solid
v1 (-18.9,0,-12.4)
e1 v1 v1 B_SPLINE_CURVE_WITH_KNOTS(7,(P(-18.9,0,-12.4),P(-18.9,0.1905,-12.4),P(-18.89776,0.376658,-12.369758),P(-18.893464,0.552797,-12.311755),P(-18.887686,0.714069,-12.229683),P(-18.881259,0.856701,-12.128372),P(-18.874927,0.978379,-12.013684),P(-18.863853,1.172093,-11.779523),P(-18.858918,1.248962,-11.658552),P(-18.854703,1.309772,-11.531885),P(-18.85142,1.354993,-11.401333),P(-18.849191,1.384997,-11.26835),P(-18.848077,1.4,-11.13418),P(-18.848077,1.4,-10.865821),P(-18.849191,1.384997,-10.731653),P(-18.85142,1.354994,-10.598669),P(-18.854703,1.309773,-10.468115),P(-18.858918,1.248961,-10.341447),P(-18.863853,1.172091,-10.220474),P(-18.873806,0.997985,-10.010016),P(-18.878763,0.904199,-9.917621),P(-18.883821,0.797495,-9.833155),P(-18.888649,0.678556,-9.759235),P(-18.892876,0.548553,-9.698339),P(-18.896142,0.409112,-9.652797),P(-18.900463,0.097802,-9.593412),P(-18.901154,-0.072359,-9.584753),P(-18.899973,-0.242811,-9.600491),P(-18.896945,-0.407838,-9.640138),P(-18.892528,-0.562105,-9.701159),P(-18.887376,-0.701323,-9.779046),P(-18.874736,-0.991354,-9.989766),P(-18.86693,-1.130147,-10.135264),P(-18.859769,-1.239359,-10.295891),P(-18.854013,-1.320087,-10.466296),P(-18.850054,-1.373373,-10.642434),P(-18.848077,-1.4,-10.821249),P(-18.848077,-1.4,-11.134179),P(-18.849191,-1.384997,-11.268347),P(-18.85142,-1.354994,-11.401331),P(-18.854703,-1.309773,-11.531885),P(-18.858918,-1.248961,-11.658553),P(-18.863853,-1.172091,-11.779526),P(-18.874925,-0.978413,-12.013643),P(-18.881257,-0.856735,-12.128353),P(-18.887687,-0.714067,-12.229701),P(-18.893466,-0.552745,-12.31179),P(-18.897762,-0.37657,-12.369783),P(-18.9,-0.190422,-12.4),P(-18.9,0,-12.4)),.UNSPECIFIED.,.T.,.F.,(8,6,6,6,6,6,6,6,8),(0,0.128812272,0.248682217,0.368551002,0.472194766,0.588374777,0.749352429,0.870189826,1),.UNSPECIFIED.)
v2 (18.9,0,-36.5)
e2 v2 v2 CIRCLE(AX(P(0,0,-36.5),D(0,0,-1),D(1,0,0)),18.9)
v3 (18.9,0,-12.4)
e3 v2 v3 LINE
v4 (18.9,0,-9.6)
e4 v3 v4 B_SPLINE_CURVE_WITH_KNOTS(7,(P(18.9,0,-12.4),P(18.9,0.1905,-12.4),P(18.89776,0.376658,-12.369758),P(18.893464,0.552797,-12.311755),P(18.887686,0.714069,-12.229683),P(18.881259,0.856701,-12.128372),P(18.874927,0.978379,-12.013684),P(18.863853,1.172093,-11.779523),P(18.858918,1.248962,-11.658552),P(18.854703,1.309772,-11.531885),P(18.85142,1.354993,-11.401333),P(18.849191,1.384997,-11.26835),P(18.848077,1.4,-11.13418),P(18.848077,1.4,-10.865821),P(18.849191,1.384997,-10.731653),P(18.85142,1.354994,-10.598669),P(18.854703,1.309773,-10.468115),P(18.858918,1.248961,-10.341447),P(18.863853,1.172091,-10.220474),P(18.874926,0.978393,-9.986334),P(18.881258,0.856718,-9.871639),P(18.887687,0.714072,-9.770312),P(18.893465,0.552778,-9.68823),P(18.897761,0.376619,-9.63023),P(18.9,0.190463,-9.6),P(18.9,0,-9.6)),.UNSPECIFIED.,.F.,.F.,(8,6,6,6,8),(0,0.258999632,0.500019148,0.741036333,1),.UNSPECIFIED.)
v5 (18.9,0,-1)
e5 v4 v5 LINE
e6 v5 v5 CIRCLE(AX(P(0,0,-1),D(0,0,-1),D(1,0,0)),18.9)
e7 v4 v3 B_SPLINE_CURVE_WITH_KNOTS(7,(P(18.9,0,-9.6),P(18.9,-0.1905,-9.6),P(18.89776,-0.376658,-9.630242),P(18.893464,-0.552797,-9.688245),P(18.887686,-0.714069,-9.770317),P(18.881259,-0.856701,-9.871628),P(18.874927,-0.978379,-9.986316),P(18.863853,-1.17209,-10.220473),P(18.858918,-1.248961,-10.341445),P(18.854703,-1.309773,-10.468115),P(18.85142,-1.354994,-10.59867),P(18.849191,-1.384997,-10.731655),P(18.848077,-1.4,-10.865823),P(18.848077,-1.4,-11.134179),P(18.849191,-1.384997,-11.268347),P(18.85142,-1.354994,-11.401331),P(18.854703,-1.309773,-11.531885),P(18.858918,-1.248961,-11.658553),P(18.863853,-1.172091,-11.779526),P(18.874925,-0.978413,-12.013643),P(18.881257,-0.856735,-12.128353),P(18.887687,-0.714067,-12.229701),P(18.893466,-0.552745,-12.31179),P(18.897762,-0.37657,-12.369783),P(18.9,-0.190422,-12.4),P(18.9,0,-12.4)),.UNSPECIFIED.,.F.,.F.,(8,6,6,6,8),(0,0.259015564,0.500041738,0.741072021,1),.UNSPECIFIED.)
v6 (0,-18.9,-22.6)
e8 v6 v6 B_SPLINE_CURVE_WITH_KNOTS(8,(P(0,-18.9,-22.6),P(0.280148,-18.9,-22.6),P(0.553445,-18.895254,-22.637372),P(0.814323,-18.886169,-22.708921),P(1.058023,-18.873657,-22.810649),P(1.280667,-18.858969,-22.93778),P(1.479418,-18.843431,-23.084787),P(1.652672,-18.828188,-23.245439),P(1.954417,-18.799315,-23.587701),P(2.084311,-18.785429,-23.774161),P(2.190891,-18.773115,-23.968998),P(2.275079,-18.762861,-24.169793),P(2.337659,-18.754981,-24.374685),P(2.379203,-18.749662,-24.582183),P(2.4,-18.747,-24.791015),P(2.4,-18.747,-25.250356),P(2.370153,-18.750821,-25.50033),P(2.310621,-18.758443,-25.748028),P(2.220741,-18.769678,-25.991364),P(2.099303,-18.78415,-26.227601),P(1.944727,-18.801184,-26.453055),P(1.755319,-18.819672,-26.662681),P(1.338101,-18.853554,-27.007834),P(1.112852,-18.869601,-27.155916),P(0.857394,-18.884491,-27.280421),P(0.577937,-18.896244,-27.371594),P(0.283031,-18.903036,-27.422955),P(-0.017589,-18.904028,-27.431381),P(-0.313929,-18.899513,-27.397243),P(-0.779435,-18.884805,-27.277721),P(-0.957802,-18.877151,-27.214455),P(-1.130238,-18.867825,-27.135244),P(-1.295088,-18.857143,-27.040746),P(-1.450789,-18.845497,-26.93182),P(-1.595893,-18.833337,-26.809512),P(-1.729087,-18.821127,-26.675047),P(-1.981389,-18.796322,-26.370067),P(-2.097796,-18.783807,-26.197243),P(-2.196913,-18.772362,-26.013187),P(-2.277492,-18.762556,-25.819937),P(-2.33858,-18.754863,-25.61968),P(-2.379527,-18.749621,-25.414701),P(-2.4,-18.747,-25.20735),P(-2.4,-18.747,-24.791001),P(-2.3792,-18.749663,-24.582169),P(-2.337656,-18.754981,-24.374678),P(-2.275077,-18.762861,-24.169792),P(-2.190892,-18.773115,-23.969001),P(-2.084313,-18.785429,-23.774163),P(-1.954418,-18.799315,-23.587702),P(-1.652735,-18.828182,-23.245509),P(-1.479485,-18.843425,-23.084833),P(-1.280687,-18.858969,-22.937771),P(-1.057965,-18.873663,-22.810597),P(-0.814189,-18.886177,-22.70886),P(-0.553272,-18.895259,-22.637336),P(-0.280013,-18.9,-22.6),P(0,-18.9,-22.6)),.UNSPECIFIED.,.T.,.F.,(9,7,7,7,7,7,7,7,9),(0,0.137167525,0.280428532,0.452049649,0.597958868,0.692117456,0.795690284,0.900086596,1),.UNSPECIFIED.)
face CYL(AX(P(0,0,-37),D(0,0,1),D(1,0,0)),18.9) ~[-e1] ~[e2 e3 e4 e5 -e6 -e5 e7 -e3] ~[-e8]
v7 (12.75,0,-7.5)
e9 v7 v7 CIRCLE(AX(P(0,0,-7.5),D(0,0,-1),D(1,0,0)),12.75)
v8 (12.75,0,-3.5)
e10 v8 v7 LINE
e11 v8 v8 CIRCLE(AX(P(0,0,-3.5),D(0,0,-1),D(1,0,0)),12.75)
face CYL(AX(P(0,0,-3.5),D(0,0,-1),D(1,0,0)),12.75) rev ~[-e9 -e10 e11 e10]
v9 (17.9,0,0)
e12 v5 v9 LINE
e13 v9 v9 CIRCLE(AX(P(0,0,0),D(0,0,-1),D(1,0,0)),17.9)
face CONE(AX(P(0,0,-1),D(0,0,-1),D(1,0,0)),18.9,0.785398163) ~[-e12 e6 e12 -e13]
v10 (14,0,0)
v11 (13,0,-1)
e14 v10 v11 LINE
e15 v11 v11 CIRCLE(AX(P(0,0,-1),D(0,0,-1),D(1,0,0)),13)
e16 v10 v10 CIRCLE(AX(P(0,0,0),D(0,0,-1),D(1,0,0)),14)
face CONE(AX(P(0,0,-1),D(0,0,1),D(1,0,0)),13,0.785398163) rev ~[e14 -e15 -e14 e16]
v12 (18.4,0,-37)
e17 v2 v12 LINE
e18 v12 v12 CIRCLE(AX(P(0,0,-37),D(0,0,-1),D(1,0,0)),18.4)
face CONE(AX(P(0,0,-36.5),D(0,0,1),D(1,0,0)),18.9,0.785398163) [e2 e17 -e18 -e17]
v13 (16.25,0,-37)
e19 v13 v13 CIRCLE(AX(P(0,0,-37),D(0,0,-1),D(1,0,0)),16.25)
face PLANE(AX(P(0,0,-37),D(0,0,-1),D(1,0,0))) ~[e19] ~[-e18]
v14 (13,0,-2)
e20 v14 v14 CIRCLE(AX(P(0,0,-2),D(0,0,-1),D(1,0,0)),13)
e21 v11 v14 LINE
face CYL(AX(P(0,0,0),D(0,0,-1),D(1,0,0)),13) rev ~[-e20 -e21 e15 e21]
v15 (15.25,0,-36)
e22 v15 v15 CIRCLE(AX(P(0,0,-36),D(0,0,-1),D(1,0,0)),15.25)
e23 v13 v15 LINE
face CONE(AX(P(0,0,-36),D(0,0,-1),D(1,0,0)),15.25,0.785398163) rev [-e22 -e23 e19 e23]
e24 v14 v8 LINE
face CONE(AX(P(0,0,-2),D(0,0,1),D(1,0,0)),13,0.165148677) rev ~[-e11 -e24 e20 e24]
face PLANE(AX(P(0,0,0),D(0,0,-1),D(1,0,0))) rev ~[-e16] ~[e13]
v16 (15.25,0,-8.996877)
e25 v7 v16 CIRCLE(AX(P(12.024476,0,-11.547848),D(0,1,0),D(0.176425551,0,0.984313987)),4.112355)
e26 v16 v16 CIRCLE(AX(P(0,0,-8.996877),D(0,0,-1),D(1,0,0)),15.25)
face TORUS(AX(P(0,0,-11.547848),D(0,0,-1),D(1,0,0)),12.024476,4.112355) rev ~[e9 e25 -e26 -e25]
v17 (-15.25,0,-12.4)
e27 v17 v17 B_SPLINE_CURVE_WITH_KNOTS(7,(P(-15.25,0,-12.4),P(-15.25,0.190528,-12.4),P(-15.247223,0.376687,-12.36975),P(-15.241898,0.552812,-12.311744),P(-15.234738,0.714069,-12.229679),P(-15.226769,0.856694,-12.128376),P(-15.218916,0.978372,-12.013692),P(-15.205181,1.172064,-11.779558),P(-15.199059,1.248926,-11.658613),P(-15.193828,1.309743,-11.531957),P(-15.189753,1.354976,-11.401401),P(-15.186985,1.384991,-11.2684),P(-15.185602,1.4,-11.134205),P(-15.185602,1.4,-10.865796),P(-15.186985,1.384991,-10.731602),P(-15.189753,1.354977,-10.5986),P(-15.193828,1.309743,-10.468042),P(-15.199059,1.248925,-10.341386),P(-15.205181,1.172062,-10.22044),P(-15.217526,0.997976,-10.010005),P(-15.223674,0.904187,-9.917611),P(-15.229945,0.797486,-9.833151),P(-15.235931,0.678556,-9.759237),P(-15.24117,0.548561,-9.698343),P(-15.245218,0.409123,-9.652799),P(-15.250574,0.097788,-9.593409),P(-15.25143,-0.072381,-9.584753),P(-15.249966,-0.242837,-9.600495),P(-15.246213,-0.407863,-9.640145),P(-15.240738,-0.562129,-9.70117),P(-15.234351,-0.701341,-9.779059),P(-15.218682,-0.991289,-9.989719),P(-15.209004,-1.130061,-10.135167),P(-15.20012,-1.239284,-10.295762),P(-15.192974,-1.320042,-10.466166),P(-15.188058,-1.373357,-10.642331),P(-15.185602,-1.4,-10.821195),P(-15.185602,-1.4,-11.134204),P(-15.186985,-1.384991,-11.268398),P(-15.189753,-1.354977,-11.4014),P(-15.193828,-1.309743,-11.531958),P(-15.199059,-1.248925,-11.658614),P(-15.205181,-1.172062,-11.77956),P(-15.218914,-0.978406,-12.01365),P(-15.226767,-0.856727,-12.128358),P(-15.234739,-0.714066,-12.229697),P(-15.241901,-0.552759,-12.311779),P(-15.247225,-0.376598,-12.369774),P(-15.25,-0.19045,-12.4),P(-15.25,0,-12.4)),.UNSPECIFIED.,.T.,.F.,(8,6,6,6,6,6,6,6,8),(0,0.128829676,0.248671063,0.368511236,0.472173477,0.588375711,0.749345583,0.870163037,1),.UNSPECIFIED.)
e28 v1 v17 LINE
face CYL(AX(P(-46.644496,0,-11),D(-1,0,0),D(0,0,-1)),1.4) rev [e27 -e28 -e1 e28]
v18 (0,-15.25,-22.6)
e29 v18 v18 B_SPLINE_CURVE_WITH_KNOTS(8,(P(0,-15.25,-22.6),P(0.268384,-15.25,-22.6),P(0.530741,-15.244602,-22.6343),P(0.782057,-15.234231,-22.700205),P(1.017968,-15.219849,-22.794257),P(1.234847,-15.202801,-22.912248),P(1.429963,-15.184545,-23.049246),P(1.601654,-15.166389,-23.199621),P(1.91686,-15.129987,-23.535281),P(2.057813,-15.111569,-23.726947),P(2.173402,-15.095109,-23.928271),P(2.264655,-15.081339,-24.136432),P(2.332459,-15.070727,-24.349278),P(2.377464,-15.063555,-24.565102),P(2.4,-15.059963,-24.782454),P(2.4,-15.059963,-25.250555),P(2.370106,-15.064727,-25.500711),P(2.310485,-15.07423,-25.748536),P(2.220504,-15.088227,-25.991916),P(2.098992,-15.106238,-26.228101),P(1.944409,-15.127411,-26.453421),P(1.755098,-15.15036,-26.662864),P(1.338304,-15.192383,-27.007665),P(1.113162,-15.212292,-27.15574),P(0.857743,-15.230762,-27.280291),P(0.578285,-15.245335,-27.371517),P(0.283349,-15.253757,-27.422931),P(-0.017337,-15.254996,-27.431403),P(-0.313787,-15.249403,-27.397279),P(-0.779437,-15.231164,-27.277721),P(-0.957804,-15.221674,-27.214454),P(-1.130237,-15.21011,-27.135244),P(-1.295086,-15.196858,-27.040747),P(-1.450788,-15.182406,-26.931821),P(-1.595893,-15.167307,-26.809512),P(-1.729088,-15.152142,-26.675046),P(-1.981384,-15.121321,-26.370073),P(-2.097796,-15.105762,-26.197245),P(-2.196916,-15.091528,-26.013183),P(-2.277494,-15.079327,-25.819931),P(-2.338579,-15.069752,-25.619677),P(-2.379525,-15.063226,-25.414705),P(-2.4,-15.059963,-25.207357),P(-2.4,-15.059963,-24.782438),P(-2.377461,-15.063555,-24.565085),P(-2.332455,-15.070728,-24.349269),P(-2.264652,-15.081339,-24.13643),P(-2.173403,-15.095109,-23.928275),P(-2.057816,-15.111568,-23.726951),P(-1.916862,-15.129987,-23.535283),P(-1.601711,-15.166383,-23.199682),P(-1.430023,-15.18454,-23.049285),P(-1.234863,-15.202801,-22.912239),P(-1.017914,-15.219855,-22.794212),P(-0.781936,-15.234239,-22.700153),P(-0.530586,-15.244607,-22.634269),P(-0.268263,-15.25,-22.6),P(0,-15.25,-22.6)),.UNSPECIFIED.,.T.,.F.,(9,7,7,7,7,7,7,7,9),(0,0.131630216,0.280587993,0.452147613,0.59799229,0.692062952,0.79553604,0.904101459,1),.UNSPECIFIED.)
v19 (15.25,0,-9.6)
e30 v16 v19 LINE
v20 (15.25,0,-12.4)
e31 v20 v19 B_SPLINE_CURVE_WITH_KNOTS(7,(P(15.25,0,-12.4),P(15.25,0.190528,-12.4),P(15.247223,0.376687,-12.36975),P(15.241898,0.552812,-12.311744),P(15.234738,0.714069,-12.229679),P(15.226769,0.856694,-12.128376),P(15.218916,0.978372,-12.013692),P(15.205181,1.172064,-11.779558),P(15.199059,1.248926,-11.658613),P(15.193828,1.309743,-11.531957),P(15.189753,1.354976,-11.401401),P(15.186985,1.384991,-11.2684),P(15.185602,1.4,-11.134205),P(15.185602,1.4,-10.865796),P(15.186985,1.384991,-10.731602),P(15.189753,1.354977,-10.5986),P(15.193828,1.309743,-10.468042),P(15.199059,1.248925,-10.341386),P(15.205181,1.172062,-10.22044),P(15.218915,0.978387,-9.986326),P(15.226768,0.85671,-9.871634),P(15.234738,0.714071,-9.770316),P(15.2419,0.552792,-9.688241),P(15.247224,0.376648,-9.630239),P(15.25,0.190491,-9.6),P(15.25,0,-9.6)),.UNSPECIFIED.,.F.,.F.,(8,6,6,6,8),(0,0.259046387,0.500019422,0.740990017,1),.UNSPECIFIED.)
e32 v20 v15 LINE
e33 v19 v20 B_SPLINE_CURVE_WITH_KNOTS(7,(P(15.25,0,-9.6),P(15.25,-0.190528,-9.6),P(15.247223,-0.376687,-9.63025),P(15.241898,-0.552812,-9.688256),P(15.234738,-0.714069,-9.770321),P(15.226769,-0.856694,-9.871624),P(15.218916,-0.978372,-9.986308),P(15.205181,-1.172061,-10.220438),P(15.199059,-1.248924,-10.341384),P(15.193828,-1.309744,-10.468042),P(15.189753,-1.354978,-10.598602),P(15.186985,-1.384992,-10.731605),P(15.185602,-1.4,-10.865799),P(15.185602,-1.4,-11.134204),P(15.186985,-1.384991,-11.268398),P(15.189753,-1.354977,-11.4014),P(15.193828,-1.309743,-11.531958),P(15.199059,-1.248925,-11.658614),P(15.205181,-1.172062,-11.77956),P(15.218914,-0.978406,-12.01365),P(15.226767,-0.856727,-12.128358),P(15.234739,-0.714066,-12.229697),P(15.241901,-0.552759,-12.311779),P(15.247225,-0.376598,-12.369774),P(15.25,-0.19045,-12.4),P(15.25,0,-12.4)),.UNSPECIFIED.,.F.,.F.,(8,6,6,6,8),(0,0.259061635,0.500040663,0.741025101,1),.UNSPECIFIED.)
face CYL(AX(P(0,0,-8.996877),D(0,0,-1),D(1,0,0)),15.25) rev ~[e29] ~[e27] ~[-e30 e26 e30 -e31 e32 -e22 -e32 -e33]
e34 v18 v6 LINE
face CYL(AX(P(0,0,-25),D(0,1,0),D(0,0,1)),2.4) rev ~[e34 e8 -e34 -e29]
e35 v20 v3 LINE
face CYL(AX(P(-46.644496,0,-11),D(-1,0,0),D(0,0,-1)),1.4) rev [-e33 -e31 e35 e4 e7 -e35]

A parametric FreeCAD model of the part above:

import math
import FreeCAD as App
import Part
import Sketcher


def edges_at(feature, points):
    """Names of the edges that pass closest to the given points."""
    edges = feature.Shape.Edges
    near = lambda p: min(range(len(edges)), key=lambda i: edges[i].distToShape(Part.Vertex(*p))[0])
    return sorted({f"Edge{near(p) + 1}" for p in points})

doc = App.newDocument("Part")
params = doc.addObject("Spreadsheet::Sheet", "Params")
for row, (alias, value) in enumerate([
    ("sketch1_height", "2 mm"),
    ("sketch1_height2", "4 mm"),
    ("sketch1_height3", "37 mm"),
    ("sketch1_width", "5.9 mm"),
    ("sketch1_width2", "3.65 mm"),
    ("revolution_angle", "360 deg"),
    ("sketch2_diameter", "4.8 mm"),
    ("chamfer_size", "0.5 mm"),
    ("chamfer2_size", "1 mm"),
    ("sketch3_diameter", "2.8 mm"),
], start=1):
    params.set(f"A{row}", alias)
    params.set(f"B{row}", "=" + value)
    params.setAlias(f"B{row}", alias)

body = doc.addObject("PartDesign::Body", "Body")

sketch1 = body.newObject("Sketcher::SketchObject", "Sketch")
sketch1.AttachmentSupport = (doc.getObject("YZ_Plane"), [""])
sketch1.MapMode = "FlatFace"
sketch1.addGeometry([
    Part.LineSegment(App.Vector(13, 0, 0), App.Vector(13, -2, 0)),
    Part.LineSegment(App.Vector(13, -2, 0), App.Vector(12.75, -3.5, 0)),
    Part.LineSegment(App.Vector(12.75, -3.5, 0), App.Vector(12.75, -7.5, 0)),
    Part.ArcOfCircle(Part.Circle(App.Vector(12.024476, -11.547848, 0), App.Vector(0, 0, 1), 4.112355), math.radians(38.33942), math.radians(79.838373)),
    Part.LineSegment(App.Vector(15.25, -8.996877, 0), App.Vector(15.25, -37, 0)),
    Part.LineSegment(App.Vector(15.25, -37, 0), App.Vector(18.9, -37, 0)),
    Part.LineSegment(App.Vector(18.9, -37, 0), App.Vector(18.9, 0, 0)),
    Part.LineSegment(App.Vector(18.9, 0, 0), App.Vector(13, 0, 0)),
], False)
sketch1.addConstraint([
    Sketcher.Constraint("Coincident", 0, 2, 1, 1),
    Sketcher.Constraint("Coincident", 1, 2, 2, 1),
    Sketcher.Constraint("Coincident", 2, 2, 3, 2),
    Sketcher.Constraint("Coincident", 3, 1, 4, 1),
    Sketcher.Constraint("Coincident", 4, 2, 5, 1),
    Sketcher.Constraint("Coincident", 5, 2, 6, 1),
    Sketcher.Constraint("Coincident", 6, 2, 7, 1),
    Sketcher.Constraint("Coincident", 7, 2, 0, 1),
    Sketcher.Constraint("Vertical", 0),
    Sketcher.Constraint("Vertical", 2),
    Sketcher.Constraint("Vertical", 4),
    Sketcher.Constraint("Horizontal", 5),
    Sketcher.Constraint("Vertical", 6),
    Sketcher.Constraint("Horizontal", 7),
    Sketcher.Constraint("PointOnObject", 6, 2, -1),
    Sketcher.Constraint("DistanceY", 0, 2, 0, 1, 2.0),
    Sketcher.Constraint("DistanceY", 2, 2, 2, 1, 4.0),
    Sketcher.Constraint("DistanceY", 6, 1, 6, 2, 37.0),
    Sketcher.Constraint("DistanceX", 7, 2, 7, 1, 5.9),
    Sketcher.Constraint("DistanceX", -1, 1, 0, 2, 13.0),
    Sketcher.Constraint("DistanceX", 5, 1, 5, 2, 3.65),
    Sketcher.Constraint("DistanceY", 1, 2, -1, 1, 3.5),
    Sketcher.Constraint("DistanceX", 2, 2, 3, 1, 2.5),
    Sketcher.Constraint("Radius", 3, 4.112355),
    Sketcher.Constraint("DistanceY", 4, 2, 4, 1, 28.003123),
])
sketch1.setExpression("Constraints[15]", "Params.sketch1_height")
sketch1.setExpression("Constraints[16]", "Params.sketch1_height2")
sketch1.setExpression("Constraints[17]", "Params.sketch1_height3")
sketch1.setExpression("Constraints[18]", "Params.sketch1_width")
sketch1.setExpression("Constraints[20]", "Params.sketch1_width2")
revolution = body.newObject("PartDesign::Revolution", "Revolution")
revolution.Profile = sketch1
revolution.ReferenceAxis = (sketch1, ["V_Axis"])
revolution.setExpression("Angle", "Params.revolution_angle")

sketch2 = body.newObject("Sketcher::SketchObject", "Sketch001")
sketch2.AttachmentSupport = (doc.getObject("XZ_Plane"), [""])
sketch2.MapMode = "FlatFace"
sketch2.addGeometry(Part.Circle(App.Vector(0, -25, 0), App.Vector(0, 0, 1), 2.4), False)
sketch2.addConstraint([
    Sketcher.Constraint("PointOnObject", 0, 3, -2),
    Sketcher.Constraint("Diameter", 0, 4.8),
    Sketcher.Constraint("DistanceY", 0, 3, -1, 1, 25.0),
])
sketch2.setExpression("Constraints[1]", "Params.sketch2_diameter")
pocket1 = body.newObject("PartDesign::Pocket", "Pocket")
pocket1.Profile = sketch2
pocket1.Type = "ThroughAll"
pocket1.Reversed = True
doc.recompute()

chamfer = body.newObject("PartDesign::Chamfer", "Chamfer")
chamfer.Base = (pocket1, edges_at(pocket1, [(-18.9, 0, -37)]))
chamfer.setExpression("Size", "Params.chamfer_size")
doc.recompute()

chamfer2 = body.newObject("PartDesign::Chamfer", "Chamfer001")
chamfer2.Base = (chamfer, edges_at(chamfer, [(-18.9, 0, 0), (-15.25, 0, -37), (-13, 0, 0)]))
chamfer2.setExpression("Size", "Params.chamfer2_size")

sketch3 = body.newObject("Sketcher::SketchObject", "Sketch002")
sketch3.AttachmentSupport = (doc.getObject("YZ_Plane"), [""])
sketch3.MapMode = "FlatFace"
sketch3.addGeometry(Part.Circle(App.Vector(0, -11, 0), App.Vector(0, 0, 1), 1.4), False)
sketch3.addConstraint([
    Sketcher.Constraint("PointOnObject", 0, 3, -2),
    Sketcher.Constraint("Diameter", 0, 2.8),
    Sketcher.Constraint("DistanceY", 0, 3, -1, 1, 11.0),
])
sketch3.setExpression("Constraints[1]", "Params.sketch3_diameter")
pocket2 = body.newObject("PartDesign::Pocket", "Pocket001")
pocket2.Profile = sketch3
pocket2.Type = "ThroughAll"
pocket2.Midplane = True

doc.recompute()
